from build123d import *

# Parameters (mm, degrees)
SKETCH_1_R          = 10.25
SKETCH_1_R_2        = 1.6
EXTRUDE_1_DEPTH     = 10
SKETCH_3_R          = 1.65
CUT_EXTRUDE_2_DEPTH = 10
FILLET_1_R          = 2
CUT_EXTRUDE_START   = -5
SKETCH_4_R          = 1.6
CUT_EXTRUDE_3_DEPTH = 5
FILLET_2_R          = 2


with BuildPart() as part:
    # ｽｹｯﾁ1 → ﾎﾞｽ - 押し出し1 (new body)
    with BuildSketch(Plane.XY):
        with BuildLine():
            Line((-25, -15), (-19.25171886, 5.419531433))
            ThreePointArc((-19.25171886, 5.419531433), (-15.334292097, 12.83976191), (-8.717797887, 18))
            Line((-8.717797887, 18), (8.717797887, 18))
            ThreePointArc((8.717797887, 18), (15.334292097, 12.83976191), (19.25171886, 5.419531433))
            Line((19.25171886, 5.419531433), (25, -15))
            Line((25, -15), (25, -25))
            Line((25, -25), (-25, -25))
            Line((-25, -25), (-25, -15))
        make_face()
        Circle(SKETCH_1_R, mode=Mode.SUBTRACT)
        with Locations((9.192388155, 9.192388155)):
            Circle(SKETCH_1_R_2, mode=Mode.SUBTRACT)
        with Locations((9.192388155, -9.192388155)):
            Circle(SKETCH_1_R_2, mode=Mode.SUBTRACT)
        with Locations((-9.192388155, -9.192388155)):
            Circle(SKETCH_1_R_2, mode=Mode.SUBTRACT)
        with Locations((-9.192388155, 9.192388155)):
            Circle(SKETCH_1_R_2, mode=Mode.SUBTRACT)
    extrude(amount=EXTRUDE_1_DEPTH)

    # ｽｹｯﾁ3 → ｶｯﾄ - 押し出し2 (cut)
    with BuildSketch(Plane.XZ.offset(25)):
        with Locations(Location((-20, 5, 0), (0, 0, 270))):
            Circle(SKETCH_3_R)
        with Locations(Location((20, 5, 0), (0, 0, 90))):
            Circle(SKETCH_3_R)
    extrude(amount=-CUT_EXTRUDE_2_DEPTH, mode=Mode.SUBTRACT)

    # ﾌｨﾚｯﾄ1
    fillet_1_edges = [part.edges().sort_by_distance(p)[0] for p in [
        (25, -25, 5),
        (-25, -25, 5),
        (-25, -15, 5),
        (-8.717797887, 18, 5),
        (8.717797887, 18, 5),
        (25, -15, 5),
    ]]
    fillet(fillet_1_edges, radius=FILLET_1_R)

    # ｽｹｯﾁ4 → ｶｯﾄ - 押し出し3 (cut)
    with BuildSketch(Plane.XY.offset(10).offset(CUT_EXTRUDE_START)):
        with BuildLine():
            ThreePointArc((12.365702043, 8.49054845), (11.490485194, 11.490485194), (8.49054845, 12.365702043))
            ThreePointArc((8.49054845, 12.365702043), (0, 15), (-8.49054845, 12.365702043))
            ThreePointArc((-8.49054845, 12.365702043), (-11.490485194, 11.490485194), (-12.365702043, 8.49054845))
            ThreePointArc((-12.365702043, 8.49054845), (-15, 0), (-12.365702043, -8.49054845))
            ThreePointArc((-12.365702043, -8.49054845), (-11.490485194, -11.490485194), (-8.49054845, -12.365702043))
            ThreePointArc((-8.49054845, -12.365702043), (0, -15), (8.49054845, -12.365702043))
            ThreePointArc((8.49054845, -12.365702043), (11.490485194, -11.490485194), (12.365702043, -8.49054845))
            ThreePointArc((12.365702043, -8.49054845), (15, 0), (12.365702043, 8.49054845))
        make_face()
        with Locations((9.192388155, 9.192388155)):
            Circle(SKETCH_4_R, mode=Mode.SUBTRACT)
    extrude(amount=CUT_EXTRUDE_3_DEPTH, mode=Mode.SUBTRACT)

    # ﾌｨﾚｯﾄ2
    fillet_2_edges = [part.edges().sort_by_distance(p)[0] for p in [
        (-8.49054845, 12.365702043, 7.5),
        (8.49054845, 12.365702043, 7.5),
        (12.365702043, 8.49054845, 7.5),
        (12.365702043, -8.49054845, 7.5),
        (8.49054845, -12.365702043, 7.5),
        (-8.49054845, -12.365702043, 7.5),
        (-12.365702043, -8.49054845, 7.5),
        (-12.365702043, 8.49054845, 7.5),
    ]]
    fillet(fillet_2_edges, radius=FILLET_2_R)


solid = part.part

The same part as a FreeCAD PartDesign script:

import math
import FreeCAD as App
import Part
import Sketcher


def edges_at(feature, points):
    """Names of the edges that pass closest to the given points."""
    edges = feature.Shape.Edges
    near = lambda p: min(range(len(edges)), key=lambda i: edges[i].distToShape(Part.Vertex(*p))[0])
    return sorted({f"Edge{near(p) + 1}" for p in points})

doc = App.newDocument("Part")
body = doc.addObject("PartDesign::Body", "Body")

sketch1 = body.newObject("Sketcher::SketchObject", "Sketch")
sketch1.AttachmentSupport = (doc.getObject("XY_Plane"), [""])
sketch1.MapMode = "FlatFace"
sketch1.addGeometry([
    Part.LineSegment(App.Vector(-19.3, 5.4, 0), App.Vector(-25, -15, 0)),
    Part.LineSegment(App.Vector(-25, -15, 0), App.Vector(-25, -25, 0)),
    Part.LineSegment(App.Vector(-25, -25, 0), App.Vector(25, -25, 0)),
    Part.LineSegment(App.Vector(25, -25, 0), App.Vector(25, -15, 0)),
    Part.LineSegment(App.Vector(25, -15, 0), App.Vector(19.3, 5.4, 0)),
    Part.ArcOfCircle(Part.Circle(App.Vector(0, 0, 0), App.Vector(0, 0, 1), 20), math.radians(16), math.radians(64)),
    Part.LineSegment(App.Vector(8.7, 18, 0), App.Vector(-8.7, 18, 0)),
    Part.ArcOfCircle(Part.Circle(App.Vector(0, 0, 0), App.Vector(0, 0, 1), 20), math.radians(116), math.radians(164)),
    Part.Circle(App.Vector(9.2, -9.2, 0), App.Vector(0, 0, 1), 1.6),
    Part.Circle(App.Vector(-9.2, -9.2, 0), App.Vector(0, 0, 1), 1.6),
    Part.Circle(App.Vector(9.2, 9.2, 0), App.Vector(0, 0, 1), 1.6),
    Part.Circle(App.Vector(0, 0, 0), App.Vector(0, 0, 1), 10.2),
    Part.Circle(App.Vector(-9.2, 9.2, 0), App.Vector(0, 0, 1), 1.6),
], False)
sketch1.addConstraint([
    Sketcher.Constraint("Coincident", 0, 2, 1, 1),
    Sketcher.Constraint("Coincident", 1, 2, 2, 1),
    Sketcher.Constraint("Coincident", 2, 2, 3, 1),
    Sketcher.Constraint("Coincident", 3, 2, 4, 1),
    Sketcher.Constraint("Tangent", 4, 2, 5, 1),
    Sketcher.Constraint("Coincident", 5, 2, 6, 1),
    Sketcher.Constraint("Coincident", 6, 2, 7, 1),
    Sketcher.Constraint("Tangent", 7, 2, 0, 1),
    Sketcher.Constraint("Vertical", 1),
    Sketcher.Constraint("Horizontal", 2),
    Sketcher.Constraint("Vertical", 3),
    Sketcher.Constraint("Horizontal", 6),
    Sketcher.Constraint("Coincident", 5, 3, -1, 1),
    Sketcher.Constraint("Coincident", 7, 3, -1, 1),
    Sketcher.Constraint("Coincident", 11, 3, -1, 1),
    Sketcher.Constraint("Equal", 5, 7),
    Sketcher.Constraint("Equal", 8, 9),
    Sketcher.Constraint("Equal", 9, 10),
    Sketcher.Constraint("Equal", 10, 12),
    Sketcher.Constraint("Symmetric", 9, 3, 10, 3, -1, 1),
    Sketcher.Constraint("Symmetric", 8, 3, 12, 3, -1, 1),
    Sketcher.Constraint("Symmetric", 8, 3, 9, 3, -2),
    Sketcher.Constraint("Symmetric", 0, 2, 3, 2, -2),
    Sketcher.Constraint("Radius", 5, 20.0),
    Sketcher.Constraint("Diameter", 8, 3.2),
    Sketcher.Constraint("Diameter", 11, 20.5),
    Sketcher.Constraint("DistanceX", 2, 1, 2, 2, 50.0),
    Sketcher.Constraint("DistanceY", 1, 2, 1, 1, 10.0),
    Sketcher.Constraint("DistanceY", 0, 2, -1, 1, 15.0),
    Sketcher.Constraint("DistanceY", -1, 1, 5, 2, 18.0),
    Sketcher.Constraint("DistanceX", -1, 1, 8, 3, 9.192388),
    Sketcher.Constraint("DistanceY", 8, 3, -1, 1, 9.192388),
])
pad1 = body.newObject("PartDesign::Pad", "Pad")
pad1.Profile = sketch1
pad1.Length = 10

sketch2 = body.newObject("Sketcher::SketchObject", "Sketch001")
sketch2.AttachmentSupport = (doc.getObject("XZ_Plane"), [""])
sketch2.MapMode = "FlatFace"
sketch2.AttachmentOffset = App.Placement(App.Vector(0, 0, 25), App.Rotation())
sketch2.addGeometry([
    Part.Circle(App.Vector(-20, 5, 0), App.Vector(0, 0, 1), 1.6),
    Part.Circle(App.Vector(20, 5, 0), App.Vector(0, 0, 1), 1.6),
], False)
sketch2.addConstraint([
    Sketcher.Constraint("Equal", 0, 1),
    Sketcher.Constraint("Symmetric", 0, 3, 1, 3, -2),
    Sketcher.Constraint("Diameter", 0, 3.3),
    Sketcher.Constraint("DistanceX", 0, 3, -1, 1, 20.0),
    Sketcher.Constraint("DistanceY", -1, 1, 0, 3, 5.0),
])
pocket1 = body.newObject("PartDesign::Pocket", "Pocket")
pocket1.Profile = sketch2
pocket1.Length = 10
doc.recompute()

fillet = body.newObject("PartDesign::Fillet", "Fillet")
fillet.Base = (pocket1, edges_at(pocket1, [
    (25, -25, 5),
    (-25, -25, 5),
    (-25, -15, 5),
    (-8.718, 18, 5),
    (8.718, 18, 5),
    (25, -15, 5),
]))
fillet.Radius = 2

sketch3 = body.newObject("Sketcher::SketchObject", "Sketch002")
sketch3.AttachmentSupport = (doc.getObject("XY_Plane"), [""])
sketch3.MapMode = "FlatFace"
sketch3.AttachmentOffset = App.Placement(App.Vector(0, 0, 5), App.Rotation())
sketch3.addGeometry([
    Part.ArcOfCircle(Part.Circle(App.Vector(9.2, 9.2, 0), App.Vector(0, 0, 1), 3.3), math.radians(-12), math.radians(102)),
    Part.ArcOfCircle(Part.Circle(App.Vector(0, 0, 0), App.Vector(0, 0, 1), 15), math.radians(56), math.radians(124)),
    Part.ArcOfCircle(Part.Circle(App.Vector(-9.2, 9.2, 0), App.Vector(0, 0, 1), 3.3), math.radians(78), math.radians(192)),
    Part.ArcOfCircle(Part.Circle(App.Vector(0, 0, 0), App.Vector(0, 0, 1), 15), math.radians(146), math.radians(214)),
    Part.ArcOfCircle(Part.Circle(App.Vector(-9.2, -9.2, 0), App.Vector(0, 0, 1), 3.3), math.radians(168), math.radians(282)),
    Part.ArcOfCircle(Part.Circle(App.Vector(0, 0, 0), App.Vector(0, 0, 1), 15), math.radians(-124), math.radians(-56)),
    Part.ArcOfCircle(Part.Circle(App.Vector(9.2, -9.2, 0), App.Vector(0, 0, 1), 3.3), math.radians(-102), math.radians(12)),
    Part.ArcOfCircle(Part.Circle(App.Vector(0, 0, 0), App.Vector(0, 0, 1), 15), math.radians(-34), math.radians(34)),
    Part.Circle(App.Vector(9.2, 9.2, 0), App.Vector(0, 0, 1), 1.6),
], False)
sketch3.addConstraint([
    Sketcher.Constraint("Coincident", 0, 2, 1, 1),
    Sketcher.Constraint("Coincident", 1, 2, 2, 1),
    Sketcher.Constraint("Coincident", 2, 2, 3, 1),
    Sketcher.Constraint("Coincident", 3, 2, 4, 1),
    Sketcher.Constraint("Coincident", 4, 2, 5, 1),
    Sketcher.Constraint("Coincident", 5, 2, 6, 1),
    Sketcher.Constraint("Coincident", 6, 2, 7, 1),
    Sketcher.Constraint("Coincident", 7, 2, 0, 1),
    Sketcher.Constraint("Coincident", 1, 3, -1, 1),
    Sketcher.Constraint("Coincident", 3, 3, -1, 1),
    Sketcher.Constraint("Coincident", 5, 3, -1, 1),
    Sketcher.Constraint("Coincident", 7, 3, -1, 1),
    Sketcher.Constraint("Coincident", 8, 3, 0, 3),
    Sketcher.Constraint("Equal", 0, 2),
    Sketcher.Constraint("Equal", 1, 3),
    Sketcher.Constraint("Equal", 2, 4),
    Sketcher.Constraint("Equal", 3, 5),
    Sketcher.Constraint("Equal", 4, 6),
    Sketcher.Constraint("Equal", 5, 7),
    Sketcher.Constraint("Symmetric", 0, 3, 4, 3, -1, 1),
    Sketcher.Constraint("Symmetric", 2, 3, 6, 3, -1, 1),
    Sketcher.Constraint("Symmetric", 0, 3, 2, 3, -2),
    Sketcher.Constraint("Radius", 1, 15.0),
    Sketcher.Constraint("Diameter", 8, 3.2),
    Sketcher.Constraint("Radius", 0, 3.25),
    Sketcher.Constraint("DistanceX", -1, 1, 0, 3, 9.192388),
    Sketcher.Constraint("DistanceY", -1, 1, 0, 3, 9.192388),
])
pocket2 = body.newObject("PartDesign::Pocket", "Pocket001")
pocket2.Profile = sketch3
pocket2.Length = 5
pocket2.Reversed = True
doc.recompute()

fillet2 = body.newObject("PartDesign::Fillet", "Fillet001")
fillet2.Base = (pocket2, edges_at(pocket2, [
    (-8.491, 12.366, 7.5),
    (8.491, 12.366, 7.5),
    (12.366, 8.491, 7.5),
    (12.366, -8.491, 7.5),
    (8.491, -12.366, 7.5),
    (-8.491, -12.366, 7.5),
    (-12.366, -8.491, 7.5),
    (-12.366, 8.491, 7.5),
]))
fillet2.Radius = 2

doc.recompute()
